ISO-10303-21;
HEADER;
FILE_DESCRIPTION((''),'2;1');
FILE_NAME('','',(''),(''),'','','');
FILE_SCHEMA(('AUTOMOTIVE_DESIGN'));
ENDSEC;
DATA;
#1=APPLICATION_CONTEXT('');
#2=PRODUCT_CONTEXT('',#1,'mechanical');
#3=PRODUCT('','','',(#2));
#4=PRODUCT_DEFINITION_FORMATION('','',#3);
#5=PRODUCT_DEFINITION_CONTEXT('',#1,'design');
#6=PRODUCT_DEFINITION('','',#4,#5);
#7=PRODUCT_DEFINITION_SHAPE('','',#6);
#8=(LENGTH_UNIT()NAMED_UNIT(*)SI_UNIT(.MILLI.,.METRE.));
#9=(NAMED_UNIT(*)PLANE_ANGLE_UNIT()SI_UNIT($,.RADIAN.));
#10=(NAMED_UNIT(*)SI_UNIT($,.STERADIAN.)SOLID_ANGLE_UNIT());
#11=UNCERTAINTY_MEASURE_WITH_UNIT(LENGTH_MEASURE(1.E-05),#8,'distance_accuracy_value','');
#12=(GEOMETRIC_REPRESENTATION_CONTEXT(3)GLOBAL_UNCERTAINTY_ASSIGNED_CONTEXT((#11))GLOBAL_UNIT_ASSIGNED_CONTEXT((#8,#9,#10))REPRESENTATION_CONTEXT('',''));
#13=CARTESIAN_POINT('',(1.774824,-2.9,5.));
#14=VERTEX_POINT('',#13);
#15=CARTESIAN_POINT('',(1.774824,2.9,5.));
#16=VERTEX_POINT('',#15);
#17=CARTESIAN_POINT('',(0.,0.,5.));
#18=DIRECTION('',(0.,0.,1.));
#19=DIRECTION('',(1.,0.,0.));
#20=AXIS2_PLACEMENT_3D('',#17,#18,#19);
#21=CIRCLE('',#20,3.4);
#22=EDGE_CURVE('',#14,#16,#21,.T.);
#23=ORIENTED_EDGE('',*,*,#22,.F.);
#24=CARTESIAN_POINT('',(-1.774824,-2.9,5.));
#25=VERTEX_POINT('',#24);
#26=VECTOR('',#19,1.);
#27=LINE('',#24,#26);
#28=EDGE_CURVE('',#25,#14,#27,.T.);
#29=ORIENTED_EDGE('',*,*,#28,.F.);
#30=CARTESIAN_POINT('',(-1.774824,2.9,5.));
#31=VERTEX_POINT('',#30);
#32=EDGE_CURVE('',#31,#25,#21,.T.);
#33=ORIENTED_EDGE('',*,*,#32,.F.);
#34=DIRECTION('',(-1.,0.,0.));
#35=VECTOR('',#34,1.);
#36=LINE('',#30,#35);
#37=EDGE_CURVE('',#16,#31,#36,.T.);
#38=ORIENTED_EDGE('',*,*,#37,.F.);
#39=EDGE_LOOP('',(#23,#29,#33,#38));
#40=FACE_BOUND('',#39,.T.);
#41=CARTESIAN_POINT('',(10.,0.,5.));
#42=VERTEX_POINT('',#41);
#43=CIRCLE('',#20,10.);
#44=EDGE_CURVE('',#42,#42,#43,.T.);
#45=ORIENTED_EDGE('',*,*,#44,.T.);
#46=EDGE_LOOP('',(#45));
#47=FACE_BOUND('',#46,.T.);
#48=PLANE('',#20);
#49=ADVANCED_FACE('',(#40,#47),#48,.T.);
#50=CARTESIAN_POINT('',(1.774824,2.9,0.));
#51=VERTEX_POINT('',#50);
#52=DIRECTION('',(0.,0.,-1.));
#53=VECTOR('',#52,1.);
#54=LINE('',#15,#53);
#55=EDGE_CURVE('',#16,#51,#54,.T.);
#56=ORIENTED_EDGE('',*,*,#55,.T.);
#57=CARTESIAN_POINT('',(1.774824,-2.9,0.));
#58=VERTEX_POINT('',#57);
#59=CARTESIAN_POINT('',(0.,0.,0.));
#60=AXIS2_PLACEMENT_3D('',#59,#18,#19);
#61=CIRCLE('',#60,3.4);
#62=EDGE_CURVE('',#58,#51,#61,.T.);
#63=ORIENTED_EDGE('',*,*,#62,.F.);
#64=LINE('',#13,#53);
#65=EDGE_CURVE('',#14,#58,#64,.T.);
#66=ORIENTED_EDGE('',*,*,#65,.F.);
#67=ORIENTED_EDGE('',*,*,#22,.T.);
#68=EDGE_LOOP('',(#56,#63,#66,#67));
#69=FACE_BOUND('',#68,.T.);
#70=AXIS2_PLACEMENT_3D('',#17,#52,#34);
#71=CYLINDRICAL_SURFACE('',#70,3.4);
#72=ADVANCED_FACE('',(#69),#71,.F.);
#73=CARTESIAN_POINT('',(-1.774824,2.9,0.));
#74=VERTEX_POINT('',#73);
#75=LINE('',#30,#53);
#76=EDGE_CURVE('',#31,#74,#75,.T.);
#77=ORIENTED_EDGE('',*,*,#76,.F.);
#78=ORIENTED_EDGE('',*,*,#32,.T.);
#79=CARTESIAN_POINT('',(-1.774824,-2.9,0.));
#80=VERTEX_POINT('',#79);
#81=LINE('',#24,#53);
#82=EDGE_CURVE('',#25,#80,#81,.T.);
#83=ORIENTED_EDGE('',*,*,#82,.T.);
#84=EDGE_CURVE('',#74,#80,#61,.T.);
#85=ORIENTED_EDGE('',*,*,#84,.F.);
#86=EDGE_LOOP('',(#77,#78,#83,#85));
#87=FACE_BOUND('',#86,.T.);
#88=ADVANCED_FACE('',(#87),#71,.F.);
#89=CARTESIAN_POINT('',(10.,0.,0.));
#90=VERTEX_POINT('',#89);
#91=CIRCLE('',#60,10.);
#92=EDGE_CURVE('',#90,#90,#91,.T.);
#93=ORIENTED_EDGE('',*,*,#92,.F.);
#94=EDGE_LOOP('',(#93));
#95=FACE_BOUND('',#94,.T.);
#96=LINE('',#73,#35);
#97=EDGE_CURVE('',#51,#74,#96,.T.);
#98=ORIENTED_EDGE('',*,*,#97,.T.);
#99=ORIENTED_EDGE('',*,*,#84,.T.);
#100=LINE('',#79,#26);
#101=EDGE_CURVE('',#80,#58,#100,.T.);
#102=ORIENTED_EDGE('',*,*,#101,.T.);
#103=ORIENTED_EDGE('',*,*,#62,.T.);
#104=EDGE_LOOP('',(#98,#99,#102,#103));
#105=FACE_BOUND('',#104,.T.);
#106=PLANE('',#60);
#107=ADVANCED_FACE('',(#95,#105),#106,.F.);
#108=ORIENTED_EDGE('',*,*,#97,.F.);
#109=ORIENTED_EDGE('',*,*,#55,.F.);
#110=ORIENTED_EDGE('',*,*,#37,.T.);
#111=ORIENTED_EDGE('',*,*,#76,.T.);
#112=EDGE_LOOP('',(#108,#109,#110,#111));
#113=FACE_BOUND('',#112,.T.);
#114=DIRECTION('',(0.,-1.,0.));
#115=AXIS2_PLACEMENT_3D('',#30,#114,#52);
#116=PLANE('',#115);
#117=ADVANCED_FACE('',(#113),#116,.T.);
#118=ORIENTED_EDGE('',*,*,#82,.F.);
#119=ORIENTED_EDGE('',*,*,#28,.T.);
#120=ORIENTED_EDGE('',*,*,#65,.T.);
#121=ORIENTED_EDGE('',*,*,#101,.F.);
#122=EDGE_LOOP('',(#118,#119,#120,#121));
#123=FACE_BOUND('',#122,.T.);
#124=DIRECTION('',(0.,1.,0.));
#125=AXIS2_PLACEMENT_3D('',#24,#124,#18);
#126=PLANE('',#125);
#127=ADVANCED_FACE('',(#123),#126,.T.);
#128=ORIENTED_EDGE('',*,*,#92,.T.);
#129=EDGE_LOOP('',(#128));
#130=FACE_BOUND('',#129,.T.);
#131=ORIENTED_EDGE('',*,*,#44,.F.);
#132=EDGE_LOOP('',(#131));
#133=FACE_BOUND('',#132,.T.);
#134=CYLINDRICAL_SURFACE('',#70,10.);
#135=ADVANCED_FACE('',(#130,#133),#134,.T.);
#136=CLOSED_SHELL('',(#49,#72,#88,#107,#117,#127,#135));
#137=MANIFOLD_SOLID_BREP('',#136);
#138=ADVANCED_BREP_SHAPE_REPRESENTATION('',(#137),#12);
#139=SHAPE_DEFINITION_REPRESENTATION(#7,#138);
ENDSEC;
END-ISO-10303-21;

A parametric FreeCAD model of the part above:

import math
import FreeCAD as App
import Part
import Sketcher
from FreeCAD import Vector
Q = App.Units.Quantity

doc = App.newDocument("Part")
body = doc.addObject("PartDesign::Body", "Body")

# Sketch on XY plane
sketch1 = body.newObject("Sketcher::SketchObject", "Sketch")
sketch1.AttachmentSupport = (doc.getObject("XY_Plane"), [""])
sketch1.MapMode = "FlatFace"
sketch1.addGeometry(Part.Circle(Vector(0, 0, 0), Vector(0, 0, 1), 10), False)
sketch1.addGeometry(Part.ArcOfCircle(Part.Circle(Vector(0, 0, 0), Vector(0, 0, 1), 3.4), math.radians(121.466976), math.radians(238.533024)), False)
sketch1.addGeometry(Part.LineSegment(Vector(-1.774824, 2.9, 0), Vector(1.774824, 2.9, 0)), False)
sketch1.addGeometry(Part.ArcOfCircle(Part.Circle(Vector(0, 0, 0), Vector(0, 0, 1), 3.4), math.radians(-58.533024), math.radians(58.533024)), False)
sketch1.addGeometry(Part.LineSegment(Vector(1.774824, -2.9, 0), Vector(-1.774824, -2.9, 0)), False)
sketch1.addConstraint(Sketcher.Constraint("Coincident", 1, 1, 2, 1))
sketch1.addConstraint(Sketcher.Constraint("Coincident", 2, 2, 3, 2))
sketch1.addConstraint(Sketcher.Constraint("Coincident", 3, 1, 4, 1))
sketch1.addConstraint(Sketcher.Constraint("Coincident", 4, 2, 1, 2))
sketch1.addConstraint(Sketcher.Constraint("Horizontal", 2))
sketch1.addConstraint(Sketcher.Constraint("Horizontal", 4))
sketch1.addConstraint(Sketcher.Constraint("Coincident", 0, 3, -1, 1))
sketch1.addConstraint(Sketcher.Constraint("Coincident", 1, 3, -1, 1))
sketch1.addConstraint(Sketcher.Constraint("Coincident", 3, 3, -1, 1))
sketch1.addConstraint(Sketcher.Constraint("Equal", 1, 3))
sketch1.addConstraint(Sketcher.Constraint("Vertical", 2, 2, 3, 1))
sketch1.addConstraint(Sketcher.Constraint("Diameter", 0, Q("20 mm")))
sketch1.addConstraint(Sketcher.Constraint("Radius", 1, Q("3.4 mm")))
sketch1.addConstraint(Sketcher.Constraint("DistanceY", -1, 1, 1, 1, Q("2.9 mm")))
pad1 = body.newObject("PartDesign::Pad", "Pad")
pad1.Profile = sketch1
pad1.Length = 5

doc.recompute()
